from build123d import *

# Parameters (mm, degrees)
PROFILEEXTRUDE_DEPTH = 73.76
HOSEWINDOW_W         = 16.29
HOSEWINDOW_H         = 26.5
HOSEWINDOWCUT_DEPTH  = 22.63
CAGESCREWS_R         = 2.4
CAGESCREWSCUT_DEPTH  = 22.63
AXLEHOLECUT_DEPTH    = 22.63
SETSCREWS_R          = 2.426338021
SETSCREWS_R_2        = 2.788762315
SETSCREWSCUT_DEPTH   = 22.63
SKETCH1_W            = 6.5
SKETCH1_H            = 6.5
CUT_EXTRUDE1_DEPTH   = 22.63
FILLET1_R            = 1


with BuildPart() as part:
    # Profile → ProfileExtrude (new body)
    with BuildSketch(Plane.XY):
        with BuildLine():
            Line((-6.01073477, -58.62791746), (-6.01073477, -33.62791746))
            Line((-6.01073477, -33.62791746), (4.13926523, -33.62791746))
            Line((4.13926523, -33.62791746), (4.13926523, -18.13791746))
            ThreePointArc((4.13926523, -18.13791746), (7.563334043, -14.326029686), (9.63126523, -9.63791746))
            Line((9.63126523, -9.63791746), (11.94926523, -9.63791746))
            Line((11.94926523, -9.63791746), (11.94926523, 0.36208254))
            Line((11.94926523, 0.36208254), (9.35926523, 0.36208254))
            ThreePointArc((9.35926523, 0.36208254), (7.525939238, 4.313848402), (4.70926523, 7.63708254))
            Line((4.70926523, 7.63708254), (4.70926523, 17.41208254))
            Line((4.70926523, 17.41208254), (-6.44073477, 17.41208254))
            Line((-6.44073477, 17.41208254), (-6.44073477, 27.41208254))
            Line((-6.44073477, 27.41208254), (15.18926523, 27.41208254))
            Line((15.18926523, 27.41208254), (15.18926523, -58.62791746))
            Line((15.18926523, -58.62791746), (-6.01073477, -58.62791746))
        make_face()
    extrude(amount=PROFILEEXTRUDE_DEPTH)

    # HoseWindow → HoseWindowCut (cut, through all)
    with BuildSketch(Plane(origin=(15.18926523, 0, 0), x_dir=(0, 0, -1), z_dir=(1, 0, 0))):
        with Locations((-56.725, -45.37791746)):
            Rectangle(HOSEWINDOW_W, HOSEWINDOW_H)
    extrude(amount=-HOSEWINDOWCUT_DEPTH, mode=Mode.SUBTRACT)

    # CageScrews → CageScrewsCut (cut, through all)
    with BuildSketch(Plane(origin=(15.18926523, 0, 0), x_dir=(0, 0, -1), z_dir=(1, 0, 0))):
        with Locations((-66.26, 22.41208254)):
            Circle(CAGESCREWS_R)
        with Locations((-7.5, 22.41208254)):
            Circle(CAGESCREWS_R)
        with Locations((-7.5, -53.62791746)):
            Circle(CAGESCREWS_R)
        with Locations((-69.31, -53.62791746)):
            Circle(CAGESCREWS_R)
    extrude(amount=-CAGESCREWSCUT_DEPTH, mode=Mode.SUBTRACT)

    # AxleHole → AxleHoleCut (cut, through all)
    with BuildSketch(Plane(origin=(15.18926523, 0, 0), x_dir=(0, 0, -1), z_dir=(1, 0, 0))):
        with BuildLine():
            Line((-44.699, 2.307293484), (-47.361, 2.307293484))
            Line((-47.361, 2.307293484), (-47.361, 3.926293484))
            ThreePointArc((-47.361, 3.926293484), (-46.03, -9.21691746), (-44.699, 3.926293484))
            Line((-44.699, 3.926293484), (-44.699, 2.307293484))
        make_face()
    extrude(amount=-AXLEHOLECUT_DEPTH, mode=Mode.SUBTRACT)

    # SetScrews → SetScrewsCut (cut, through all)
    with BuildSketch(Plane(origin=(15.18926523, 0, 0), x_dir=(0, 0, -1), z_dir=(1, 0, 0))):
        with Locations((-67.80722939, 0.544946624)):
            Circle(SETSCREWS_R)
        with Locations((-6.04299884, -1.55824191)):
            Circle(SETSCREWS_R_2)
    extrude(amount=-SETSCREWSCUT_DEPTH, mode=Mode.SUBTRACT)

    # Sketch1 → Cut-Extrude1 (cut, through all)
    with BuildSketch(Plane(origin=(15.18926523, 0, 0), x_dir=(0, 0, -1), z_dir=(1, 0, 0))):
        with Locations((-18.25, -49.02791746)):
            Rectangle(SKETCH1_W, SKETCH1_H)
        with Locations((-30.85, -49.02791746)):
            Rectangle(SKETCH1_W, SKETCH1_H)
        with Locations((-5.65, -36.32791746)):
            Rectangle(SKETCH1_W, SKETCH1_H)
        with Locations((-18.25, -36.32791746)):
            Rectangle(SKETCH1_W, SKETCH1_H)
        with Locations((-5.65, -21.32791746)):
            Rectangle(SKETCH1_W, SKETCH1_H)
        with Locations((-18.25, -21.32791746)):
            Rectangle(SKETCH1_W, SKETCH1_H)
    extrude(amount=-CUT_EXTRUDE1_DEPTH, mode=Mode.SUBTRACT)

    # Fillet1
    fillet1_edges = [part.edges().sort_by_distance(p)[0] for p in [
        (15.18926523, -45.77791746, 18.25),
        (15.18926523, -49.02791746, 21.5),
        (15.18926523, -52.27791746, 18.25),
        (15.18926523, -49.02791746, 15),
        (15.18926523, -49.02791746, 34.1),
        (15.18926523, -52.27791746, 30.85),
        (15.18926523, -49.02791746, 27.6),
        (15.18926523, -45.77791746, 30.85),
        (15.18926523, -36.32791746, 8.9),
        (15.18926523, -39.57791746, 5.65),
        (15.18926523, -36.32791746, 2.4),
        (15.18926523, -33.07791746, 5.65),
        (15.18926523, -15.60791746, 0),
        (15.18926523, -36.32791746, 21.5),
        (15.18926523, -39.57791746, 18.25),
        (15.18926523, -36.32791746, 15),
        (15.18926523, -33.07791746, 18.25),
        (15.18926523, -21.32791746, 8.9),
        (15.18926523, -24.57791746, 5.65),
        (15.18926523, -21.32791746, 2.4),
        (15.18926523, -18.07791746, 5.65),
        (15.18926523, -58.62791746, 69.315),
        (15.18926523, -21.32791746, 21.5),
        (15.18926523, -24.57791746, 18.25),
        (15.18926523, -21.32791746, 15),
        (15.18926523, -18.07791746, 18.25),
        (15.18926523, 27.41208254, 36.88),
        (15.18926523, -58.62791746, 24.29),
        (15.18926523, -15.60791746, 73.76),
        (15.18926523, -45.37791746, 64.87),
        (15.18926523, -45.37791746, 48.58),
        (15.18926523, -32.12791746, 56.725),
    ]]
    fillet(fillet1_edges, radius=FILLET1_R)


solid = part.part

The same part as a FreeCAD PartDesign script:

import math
import FreeCAD as App
import Part
import Sketcher


def edges_at(feature, points):
    """Names of the edges that pass closest to the given points."""
    edges = feature.Shape.Edges
    near = lambda p: min(range(len(edges)), key=lambda i: edges[i].distToShape(Part.Vertex(*p))[0])
    return sorted({f"Edge{near(p) + 1}" for p in points})

doc = App.newDocument("Part")
body = doc.addObject("PartDesign::Body", "Body")

sketch1 = body.newObject("Sketcher::SketchObject", "Sketch")
sketch1.AttachmentSupport = (doc.getObject("XY_Plane"), [""])
sketch1.MapMode = "FlatFace"
sketch1.addGeometry([
    Part.LineSegment(App.Vector(-6, -33.6, 0), App.Vector(-6, -58.6, 0)),
    Part.LineSegment(App.Vector(-6, -58.6, 0), App.Vector(15.2, -58.6, 0)),
    Part.LineSegment(App.Vector(15.2, -58.6, 0), App.Vector(15.2, 27.4, 0)),
    Part.LineSegment(App.Vector(15.2, 27.4, 0), App.Vector(-6.4, 27.4, 0)),
    Part.LineSegment(App.Vector(-6.4, 27.4, 0), App.Vector(-6.4, 17.4, 0)),
    Part.LineSegment(App.Vector(-6.4, 17.4, 0), App.Vector(4.7, 17.4, 0)),
    Part.LineSegment(App.Vector(4.7, 17.4, 0), App.Vector(4.7, 7.6, 0)),
    Part.ArcOfCircle(Part.Circle(App.Vector(-6.2, -4.4, 0), App.Vector(0, 0, 1), 16.3), math.radians(17), math.radians(48)),
    Part.LineSegment(App.Vector(9.4, 0.4, 0), App.Vector(11.9, 0.4, 0)),
    Part.LineSegment(App.Vector(11.9, 0.4, 0), App.Vector(11.9, -9.6, 0)),
    Part.LineSegment(App.Vector(11.9, -9.6, 0), App.Vector(9.6, -9.6, 0)),
    Part.ArcOfCircle(Part.Circle(App.Vector(-6.1, -5.5, 0), App.Vector(0, 0, 1), 16.3), math.radians(-51), math.radians(-15)),
    Part.LineSegment(App.Vector(4.1, -18.1, 0), App.Vector(4.1, -33.6, 0)),
    Part.LineSegment(App.Vector(4.1, -33.6, 0), App.Vector(-6, -33.6, 0)),
], False)
sketch1.addConstraint([
    Sketcher.Constraint("Coincident", 0, 2, 1, 1),
    Sketcher.Constraint("Coincident", 1, 2, 2, 1),
    Sketcher.Constraint("Coincident", 2, 2, 3, 1),
    Sketcher.Constraint("Coincident", 3, 2, 4, 1),
    Sketcher.Constraint("Coincident", 4, 2, 5, 1),
    Sketcher.Constraint("Coincident", 5, 2, 6, 1),
    Sketcher.Constraint("Coincident", 6, 2, 7, 2),
    Sketcher.Constraint("Coincident", 7, 1, 8, 1),
    Sketcher.Constraint("Coincident", 8, 2, 9, 1),
    Sketcher.Constraint("Coincident", 9, 2, 10, 1),
    Sketcher.Constraint("Coincident", 10, 2, 11, 2),
    Sketcher.Constraint("Coincident", 11, 1, 12, 1),
    Sketcher.Constraint("Coincident", 12, 2, 13, 1),
    Sketcher.Constraint("Coincident", 13, 2, 0, 1),
    Sketcher.Constraint("Vertical", 0),
    Sketcher.Constraint("Horizontal", 1),
    Sketcher.Constraint("Vertical", 2),
    Sketcher.Constraint("Horizontal", 3),
    Sketcher.Constraint("Vertical", 4),
    Sketcher.Constraint("Horizontal", 5),
    Sketcher.Constraint("Vertical", 6),
    Sketcher.Constraint("Horizontal", 8),
    Sketcher.Constraint("Vertical", 9),
    Sketcher.Constraint("Horizontal", 10),
    Sketcher.Constraint("Vertical", 12),
    Sketcher.Constraint("Horizontal", 13),
    Sketcher.Constraint("Equal", 7, 11),
    Sketcher.Constraint("Equal", 4, 9),
    Sketcher.Constraint("DistanceY", 0, 2, 0, 1, 25.0),
    Sketcher.Constraint("DistanceY", 4, 2, 4, 1, 10.0),
    Sketcher.Constraint("DistanceX", 1, 1, 1, 2, 21.2),
    Sketcher.Constraint("Radius", 7, 16.261),
    Sketcher.Constraint("DistanceX", 3, 2, 3, 1, 21.63),
    Sketcher.Constraint("DistanceX", 5, 1, 5, 2, 11.15),
    Sketcher.Constraint("DistanceX", 8, 1, 8, 2, 2.59),
    Sketcher.Constraint("DistanceX", 13, 2, 13, 1, 10.15),
    Sketcher.Constraint("DistanceY", 2, 1, 2, 2, 86.04),
    Sketcher.Constraint("DistanceY", 12, 2, 12, 1, 15.49),
    Sketcher.Constraint("DistanceX", 4, 2, 7, 1, 15.8),
    Sketcher.Constraint("DistanceY", 11, 1, 10, 2, 8.5),
    Sketcher.Constraint("DistanceX", 10, 2, 10, 1, 2.318),
    Sketcher.Constraint("DistanceY", 6, 2, 6, 1, 9.775),
    Sketcher.Constraint("DistanceX", 7, 3, -1, 1, 6.175364),
    Sketcher.Constraint("DistanceY", 7, 3, -1, 1, 4.443686),
])
pad1 = body.newObject("PartDesign::Pad", "Pad")
pad1.Profile = sketch1
pad1.Length = 73.76

sketch2 = body.newObject("Sketcher::SketchObject", "Sketch001")
sketch2.AttachmentSupport = (doc.getObject("YZ_Plane"), [""])
sketch2.MapMode = "FlatFace"
sketch2.AttachmentOffset = App.Placement(App.Vector(0, 0, 15.189265), App.Rotation())
sketch2.addGeometry([
    Part.LineSegment(App.Vector(-32, 65, 0), App.Vector(-59, 65, 0)),
    Part.LineSegment(App.Vector(-59, 65, 0), App.Vector(-59, 49, 0)),
    Part.LineSegment(App.Vector(-59, 49, 0), App.Vector(-32, 49, 0)),
    Part.LineSegment(App.Vector(-32, 49, 0), App.Vector(-32, 65, 0)),
], False)
sketch2.addConstraint([
    Sketcher.Constraint("Coincident", 0, 2, 1, 1),
    Sketcher.Constraint("Coincident", 1, 2, 2, 1),
    Sketcher.Constraint("Coincident", 2, 2, 3, 1),
    Sketcher.Constraint("Coincident", 3, 2, 0, 1),
    Sketcher.Constraint("Horizontal", 0),
    Sketcher.Constraint("Vertical", 1),
    Sketcher.Constraint("Horizontal", 2),
    Sketcher.Constraint("Vertical", 3),
    Sketcher.Constraint("DistanceX", 0, 2, 0, 1, 26.5),
    Sketcher.Constraint("DistanceY", 1, 2, 1, 1, 16.29),
    Sketcher.Constraint("DistanceY", -1, 1, 0, 2, 64.87),
    Sketcher.Constraint("DistanceX", 0, 2, -1, 1, 58.627917),
])
pocket1 = body.newObject("PartDesign::Pocket", "Pocket")
pocket1.Profile = sketch2
pocket1.Type = "ThroughAll"

sketch3 = body.newObject("Sketcher::SketchObject", "Sketch002")
sketch3.AttachmentSupport = (doc.getObject("YZ_Plane"), [""])
sketch3.MapMode = "FlatFace"
sketch3.AttachmentOffset = App.Placement(App.Vector(0, 0, 15.189265), App.Rotation())
sketch3.addGeometry([
    Part.Circle(App.Vector(22.4, 66.3, 0), App.Vector(0, 0, 1), 2.4),
    Part.Circle(App.Vector(22.4, 7.5, 0), App.Vector(0, 0, 1), 2.4),
    Part.Circle(App.Vector(-53.6, 7.5, 0), App.Vector(0, 0, 1), 2.4),
    Part.Circle(App.Vector(-53.6, 69.3, 0), App.Vector(0, 0, 1), 2.4),
], False)
sketch3.addConstraint([
    Sketcher.Constraint("Equal", 0, 1),
    Sketcher.Constraint("Equal", 1, 2),
    Sketcher.Constraint("Equal", 2, 3),
    Sketcher.Constraint("Horizontal", 1, 3, 2, 3),
    Sketcher.Constraint("Vertical", 0, 3, 1, 3),
    Sketcher.Constraint("Vertical", 2, 3, 3, 3),
    Sketcher.Constraint("Diameter", 0, 4.8),
    Sketcher.Constraint("DistanceY", -1, 1, 1, 3, 7.5),
    Sketcher.Constraint("DistanceY", -1, 1, 0, 3, 66.26),
    Sketcher.Constraint("DistanceY", -1, 1, 3, 3, 69.31),
    Sketcher.Constraint("DistanceX", 2, 3, 1, 3, 76.04),
    Sketcher.Constraint("DistanceX", -1, 1, 0, 3, 22.412083),
])
pocket2 = body.newObject("PartDesign::Pocket", "Pocket001")
pocket2.Profile = sketch3
pocket2.Type = "ThroughAll"

sketch4 = body.newObject("Sketcher::SketchObject", "Sketch003")
sketch4.AttachmentSupport = (doc.getObject("YZ_Plane"), [""])
sketch4.MapMode = "FlatFace"
sketch4.AttachmentOffset = App.Placement(App.Vector(0, 0, 15.189265), App.Rotation())
sketch4.addGeometry([
    Part.LineSegment(App.Vector(2.3, 44.7, 0), App.Vector(2.3, 47.4, 0)),
    Part.LineSegment(App.Vector(2.3, 47.4, 0), App.Vector(3.9, 47.4, 0)),
    Part.ArcOfCircle(Part.Circle(App.Vector(-2.6, 46, 0), App.Vector(0, 0, 1), 6.6), math.radians(12), math.radians(348)),
    Part.LineSegment(App.Vector(3.9, 44.7, 0), App.Vector(2.3, 44.7, 0)),
], False)
sketch4.addConstraint([
    Sketcher.Constraint("Coincident", 0, 2, 1, 1),
    Sketcher.Constraint("Coincident", 1, 2, 2, 1),
    Sketcher.Constraint("Coincident", 2, 2, 3, 1),
    Sketcher.Constraint("Coincident", 3, 2, 0, 1),
    Sketcher.Constraint("Vertical", 0),
    Sketcher.Constraint("Horizontal", 1),
    Sketcher.Constraint("Horizontal", 3),
    Sketcher.Constraint("Vertical", 1, 2, 2, 2),
    Sketcher.Constraint("Radius", 2, 6.639),
    Sketcher.Constraint("DistanceX", 1, 1, 1, 2, 1.619),
    Sketcher.Constraint("DistanceY", 0, 1, 0, 2, 2.662),
    Sketcher.Constraint("DistanceY", -1, 1, 2, 3, 46.03),
    Sketcher.Constraint("DistanceX", 2, 3, -1, 1, 2.577917),
])
pocket3 = body.newObject("PartDesign::Pocket", "Pocket002")
pocket3.Profile = sketch4
pocket3.Type = "ThroughAll"

sketch5 = body.newObject("Sketcher::SketchObject", "Sketch004")
sketch5.AttachmentSupport = (doc.getObject("YZ_Plane"), [""])
sketch5.MapMode = "FlatFace"
sketch5.AttachmentOffset = App.Placement(App.Vector(0, 0, 15.189265), App.Rotation())
sketch5.addGeometry([
    Part.Circle(App.Vector(0.5, 67.8, 0), App.Vector(0, 0, 1), 2.4),
    Part.Circle(App.Vector(-1.6, 6, 0), App.Vector(0, 0, 1), 2.8),
], False)
sketch5.addConstraint([
    Sketcher.Constraint("Diameter", 0, 4.852676),
    Sketcher.Constraint("Diameter", 1, 5.577525),
    Sketcher.Constraint("DistanceY", -1, 1, 1, 3, 6.042999),
    Sketcher.Constraint("DistanceY", -1, 1, 0, 3, 67.807229),
    Sketcher.Constraint("DistanceX", 1, 3, -1, 1, 1.558242),
    Sketcher.Constraint("DistanceX", 1, 3, 0, 3, 2.103189),
])
pocket4 = body.newObject("PartDesign::Pocket", "Pocket003")
pocket4.Profile = sketch5
pocket4.Type = "ThroughAll"

sketch6 = body.newObject("Sketcher::SketchObject", "Sketch005")
sketch6.AttachmentSupport = (doc.getObject("YZ_Plane"), [""])
sketch6.MapMode = "FlatFace"
sketch6.AttachmentOffset = App.Placement(App.Vector(0, 0, 15.189265), App.Rotation())
sketch6.addGeometry([
    Part.LineSegment(App.Vector(-46, 22, 0), App.Vector(-52, 22, 0)),
    Part.LineSegment(App.Vector(-52, 22, 0), App.Vector(-52, 15, 0)),
    Part.LineSegment(App.Vector(-52, 15, 0), App.Vector(-46, 15, 0)),
    Part.LineSegment(App.Vector(-46, 15, 0), App.Vector(-46, 22, 0)),
    Part.LineSegment(App.Vector(-46, 34, 0), App.Vector(-52, 34, 0)),
    Part.LineSegment(App.Vector(-52, 34, 0), App.Vector(-52, 28, 0)),
    Part.LineSegment(App.Vector(-52, 28, 0), App.Vector(-46, 28, 0)),
    Part.LineSegment(App.Vector(-46, 28, 0), App.Vector(-46, 34, 0)),
    Part.LineSegment(App.Vector(-33, 9, 0), App.Vector(-40, 9, 0)),
    Part.LineSegment(App.Vector(-40, 9, 0), App.Vector(-40, 2, 0)),
    Part.LineSegment(App.Vector(-40, 2, 0), App.Vector(-33, 2, 0)),
    Part.LineSegment(App.Vector(-33, 2, 0), App.Vector(-33, 9, 0)),
    Part.LineSegment(App.Vector(-33, 22, 0), App.Vector(-40, 22, 0)),
    Part.LineSegment(App.Vector(-40, 22, 0), App.Vector(-40, 15, 0)),
    Part.LineSegment(App.Vector(-40, 15, 0), App.Vector(-33, 15, 0)),
    Part.LineSegment(App.Vector(-33, 15, 0), App.Vector(-33, 22, 0)),
    Part.LineSegment(App.Vector(-18, 9, 0), App.Vector(-25, 9, 0)),
    Part.LineSegment(App.Vector(-25, 9, 0), App.Vector(-25, 2, 0)),
    Part.LineSegment(App.Vector(-25, 2, 0), App.Vector(-18, 2, 0)),
    Part.LineSegment(App.Vector(-18, 2, 0), App.Vector(-18, 9, 0)),
    Part.LineSegment(App.Vector(-18, 22, 0), App.Vector(-25, 22, 0)),
    Part.LineSegment(App.Vector(-25, 22, 0), App.Vector(-25, 15, 0)),
    Part.LineSegment(App.Vector(-25, 15, 0), App.Vector(-18, 15, 0)),
    Part.LineSegment(App.Vector(-18, 15, 0), App.Vector(-18, 22, 0)),
], False)
sketch6.addConstraint([
    Sketcher.Constraint("Coincident", 0, 2, 1, 1),
    Sketcher.Constraint("Coincident", 1, 2, 2, 1),
    Sketcher.Constraint("Coincident", 2, 2, 3, 1),
    Sketcher.Constraint("Coincident", 3, 2, 0, 1),
    Sketcher.Constraint("Coincident", 4, 2, 5, 1),
    Sketcher.Constraint("Coincident", 5, 2, 6, 1),
    Sketcher.Constraint("Coincident", 6, 2, 7, 1),
    Sketcher.Constraint("Coincident", 7, 2, 4, 1),
    Sketcher.Constraint("Coincident", 8, 2, 9, 1),
    Sketcher.Constraint("Coincident", 9, 2, 10, 1),
    Sketcher.Constraint("Coincident", 10, 2, 11, 1),
    Sketcher.Constraint("Coincident", 11, 2, 8, 1),
    Sketcher.Constraint("Coincident", 12, 2, 13, 1),
    Sketcher.Constraint("Coincident", 13, 2, 14, 1),
    Sketcher.Constraint("Coincident", 14, 2, 15, 1),
    Sketcher.Constraint("Coincident", 15, 2, 12, 1),
    Sketcher.Constraint("Coincident", 16, 2, 17, 1),
    Sketcher.Constraint("Coincident", 17, 2, 18, 1),
    Sketcher.Constraint("Coincident", 18, 2, 19, 1),
    Sketcher.Constraint("Coincident", 19, 2, 16, 1),
    Sketcher.Constraint("Coincident", 20, 2, 21, 1),
    Sketcher.Constraint("Coincident", 21, 2, 22, 1),
    Sketcher.Constraint("Coincident", 22, 2, 23, 1),
    Sketcher.Constraint("Coincident", 23, 2, 20, 1),
    Sketcher.Constraint("Horizontal", 0),
    Sketcher.Constraint("Vertical", 1),
    Sketcher.Constraint("Horizontal", 2),
    Sketcher.Constraint("Vertical", 3),
    Sketcher.Constraint("Horizontal", 4),
    Sketcher.Constraint("Vertical", 5),
    Sketcher.Constraint("Horizontal", 6),
    Sketcher.Constraint("Vertical", 7),
    Sketcher.Constraint("Horizontal", 8),
    Sketcher.Constraint("Vertical", 9),
    Sketcher.Constraint("Horizontal", 10),
    Sketcher.Constraint("Vertical", 11),
    Sketcher.Constraint("Horizontal", 12),
    Sketcher.Constraint("Vertical", 13),
    Sketcher.Constraint("Horizontal", 14),
    Sketcher.Constraint("Vertical", 15),
    Sketcher.Constraint("Horizontal", 16),
    Sketcher.Constraint("Vertical", 17),
    Sketcher.Constraint("Horizontal", 18),
    Sketcher.Constraint("Vertical", 19),
    Sketcher.Constraint("Horizontal", 20),
    Sketcher.Constraint("Vertical", 21),
    Sketcher.Constraint("Horizontal", 22),
    Sketcher.Constraint("Vertical", 23),
    Sketcher.Constraint("Horizontal", 3, 2, 12, 2),
    Sketcher.Constraint("Horizontal", 2, 2, 13, 2),
    Sketcher.Constraint("Horizontal", 11, 2, 16, 2),
    Sketcher.Constraint("Horizontal", 10, 2, 17, 2),
    Sketcher.Constraint("Horizontal", 15, 2, 20, 2),
    Sketcher.Constraint("Horizontal", 14, 2, 21, 2),
    Sketcher.Constraint("Vertical", 1, 2, 4, 2),
    Sketcher.Constraint("Vertical", 3, 2, 6, 2),
    Sketcher.Constraint("Vertical", 9, 2, 12, 2),
    Sketcher.Constraint("Vertical", 11, 2, 14, 2),
    Sketcher.Constraint("Vertical", 17, 2, 20, 2),
    Sketcher.Constraint("Vertical", 19, 2, 22, 2),
    Sketcher.Constraint("Equal", 6, 8),
    Sketcher.Constraint("Equal", 14, 16),
    Sketcher.Constraint("Equal", 22, 1),
    Sketcher.Constraint("Equal", 3, 5),
    Sketcher.Constraint("Equal", 7, 9),
    Sketcher.Constraint("DistanceX", 0, 2, 0, 1, 6.5),
    Sketcher.Constraint("DistanceY", -1, 1, 1, 2, 15.0),
    Sketcher.Constraint("DistanceX", 8, 2, 16, 2, 15.0),
    Sketcher.Constraint("DistanceY", -1, 1, 4, 2, 34.1),
    Sketcher.Constraint("DistanceY", -1, 1, 8, 2, 8.9),
    Sketcher.Constraint("DistanceX", 2, 2, 8, 2, 6.2),
    Sketcher.Constraint("DistanceX", 0, 2, -1, 1, 52.277917),
])
pocket5 = body.newObject("PartDesign::Pocket", "Pocket004")
pocket5.Profile = sketch6
pocket5.Type = "ThroughAll"
doc.recompute()

fillet = body.newObject("PartDesign::Fillet", "Fillet")
fillet.Base = (pocket5, edges_at(pocket5, [
    (15.189, -45.778, 18.25),
    (15.189, -49.028, 21.5),
    (15.189, -52.278, 18.25),
    (15.189, -49.028, 15),
    (15.189, -49.028, 34.1),
    (15.189, -52.278, 30.85),
    (15.189, -49.028, 27.6),
    (15.189, -45.778, 30.85),
    (15.189, -36.328, 8.9),
    (15.189, -39.578, 5.65),
    (15.189, -36.328, 2.4),
    (15.189, -33.078, 5.65),
    (15.189, -15.608, 0),
    (15.189, -36.328, 21.5),
    (15.189, -39.578, 18.25),
    (15.189, -36.328, 15),
    (15.189, -33.078, 18.25),
    (15.189, -21.328, 8.9),
    (15.189, -24.578, 5.65),
    (15.189, -21.328, 2.4),
    (15.189, -18.078, 5.65),
    (15.189, -58.628, 69.315),
    (15.189, -21.328, 21.5),
    (15.189, -24.578, 18.25),
    (15.189, -21.328, 15),
    (15.189, -18.078, 18.25),
    (15.189, 27.412, 36.88),
    (15.189, -58.628, 24.29),
    (15.189, -15.608, 73.76),
    (15.189, -45.378, 64.87),
    (15.189, -45.378, 48.58),
    (15.189, -32.128, 56.725),
]))
fillet.Radius = 1

doc.recompute()
